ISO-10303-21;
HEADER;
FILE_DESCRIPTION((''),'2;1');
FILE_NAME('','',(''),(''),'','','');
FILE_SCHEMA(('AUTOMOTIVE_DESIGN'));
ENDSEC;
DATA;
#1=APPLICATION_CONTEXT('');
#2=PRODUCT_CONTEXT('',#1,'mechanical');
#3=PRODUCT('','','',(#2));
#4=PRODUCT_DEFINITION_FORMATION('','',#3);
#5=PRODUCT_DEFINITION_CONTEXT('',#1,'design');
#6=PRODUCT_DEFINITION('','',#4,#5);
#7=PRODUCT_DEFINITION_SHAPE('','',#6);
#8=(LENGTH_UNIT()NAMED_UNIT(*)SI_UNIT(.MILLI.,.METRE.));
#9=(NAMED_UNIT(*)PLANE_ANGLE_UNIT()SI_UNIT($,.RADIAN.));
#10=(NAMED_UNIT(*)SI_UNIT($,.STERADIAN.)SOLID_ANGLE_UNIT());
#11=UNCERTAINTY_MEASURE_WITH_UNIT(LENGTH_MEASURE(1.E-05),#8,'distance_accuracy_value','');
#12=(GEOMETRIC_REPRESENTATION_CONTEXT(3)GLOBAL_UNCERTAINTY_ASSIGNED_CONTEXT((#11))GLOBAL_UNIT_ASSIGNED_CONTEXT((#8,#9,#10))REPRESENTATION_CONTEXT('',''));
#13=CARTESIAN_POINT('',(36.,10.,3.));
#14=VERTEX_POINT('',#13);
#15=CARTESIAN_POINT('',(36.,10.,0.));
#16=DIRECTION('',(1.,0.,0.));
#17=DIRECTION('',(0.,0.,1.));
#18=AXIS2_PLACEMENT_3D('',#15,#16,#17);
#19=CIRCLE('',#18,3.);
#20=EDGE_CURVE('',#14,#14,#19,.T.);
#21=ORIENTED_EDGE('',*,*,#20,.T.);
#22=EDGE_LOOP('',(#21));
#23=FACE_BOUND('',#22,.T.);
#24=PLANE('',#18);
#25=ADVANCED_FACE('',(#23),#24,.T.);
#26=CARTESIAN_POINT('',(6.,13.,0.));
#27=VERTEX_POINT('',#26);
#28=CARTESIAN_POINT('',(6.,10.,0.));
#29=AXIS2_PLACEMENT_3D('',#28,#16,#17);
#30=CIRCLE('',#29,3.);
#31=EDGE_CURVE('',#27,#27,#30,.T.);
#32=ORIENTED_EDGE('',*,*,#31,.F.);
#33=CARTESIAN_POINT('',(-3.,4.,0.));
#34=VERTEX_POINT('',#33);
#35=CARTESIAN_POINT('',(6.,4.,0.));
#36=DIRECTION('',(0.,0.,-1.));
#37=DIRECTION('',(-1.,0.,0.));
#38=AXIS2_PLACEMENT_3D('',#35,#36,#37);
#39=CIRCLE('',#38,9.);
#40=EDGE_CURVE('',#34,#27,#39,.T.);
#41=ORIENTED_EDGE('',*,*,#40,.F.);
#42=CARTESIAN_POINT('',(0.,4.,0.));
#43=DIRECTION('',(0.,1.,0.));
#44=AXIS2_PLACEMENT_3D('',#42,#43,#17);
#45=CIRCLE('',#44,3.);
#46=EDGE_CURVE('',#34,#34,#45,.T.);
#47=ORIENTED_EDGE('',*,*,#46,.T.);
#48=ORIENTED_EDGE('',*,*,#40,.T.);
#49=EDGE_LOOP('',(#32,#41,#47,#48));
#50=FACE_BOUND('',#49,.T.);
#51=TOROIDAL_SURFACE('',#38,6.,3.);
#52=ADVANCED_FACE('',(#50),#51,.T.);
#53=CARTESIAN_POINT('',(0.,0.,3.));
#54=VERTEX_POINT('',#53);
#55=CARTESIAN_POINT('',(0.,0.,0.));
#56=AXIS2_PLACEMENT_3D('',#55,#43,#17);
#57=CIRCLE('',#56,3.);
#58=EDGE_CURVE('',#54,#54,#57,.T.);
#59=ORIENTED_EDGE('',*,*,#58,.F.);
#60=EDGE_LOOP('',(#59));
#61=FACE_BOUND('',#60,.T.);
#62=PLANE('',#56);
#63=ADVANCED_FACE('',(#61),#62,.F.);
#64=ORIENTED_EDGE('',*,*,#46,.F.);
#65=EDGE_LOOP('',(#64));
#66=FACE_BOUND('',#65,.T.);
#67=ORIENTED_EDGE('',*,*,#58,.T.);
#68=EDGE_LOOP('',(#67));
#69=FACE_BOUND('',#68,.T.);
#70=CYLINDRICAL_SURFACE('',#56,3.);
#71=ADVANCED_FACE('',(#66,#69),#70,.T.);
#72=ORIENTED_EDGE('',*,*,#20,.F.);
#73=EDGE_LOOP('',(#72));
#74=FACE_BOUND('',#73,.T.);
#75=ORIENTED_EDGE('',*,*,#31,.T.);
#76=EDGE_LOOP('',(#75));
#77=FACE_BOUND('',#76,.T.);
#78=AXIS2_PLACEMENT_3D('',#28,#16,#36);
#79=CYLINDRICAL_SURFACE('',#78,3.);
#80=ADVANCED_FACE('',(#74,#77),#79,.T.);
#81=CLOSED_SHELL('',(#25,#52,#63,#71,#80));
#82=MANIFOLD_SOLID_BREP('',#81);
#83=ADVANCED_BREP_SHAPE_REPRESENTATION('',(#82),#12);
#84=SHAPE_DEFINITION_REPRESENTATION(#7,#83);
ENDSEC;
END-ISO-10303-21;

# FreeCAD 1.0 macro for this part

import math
import FreeCAD as App
import Part
import Sketcher

doc = App.newDocument("Part")
body = doc.addObject("PartDesign::Body", "Body")

# Sketch on XZ plane
sketch1 = body.newObject("Sketcher::SketchObject", "Sketch")
sketch1.AttachmentSupport = (doc.getObject("XZ_Plane"), [""])
sketch1.MapMode = "FlatFace"
sketch1.addGeometry(Part.Circle(App.Vector(0, 0, 0), App.Vector(0, 0, 1), 3), False)
sketch1.addConstraint([
    Sketcher.Constraint("Coincident", 0, 3, -1, 1),
    Sketcher.Constraint("Diameter", 0, 6.0),
])

# Sketch on XY plane
sketch2 = body.newObject("Sketcher::SketchObject", "Sketch001")
sketch2.AttachmentSupport = (doc.getObject("XY_Plane"), [""])
sketch2.MapMode = "FlatFace"
sketch2.addGeometry([
    Part.LineSegment(App.Vector(0, 0, 0), App.Vector(0, 4, 0)),
    Part.ArcOfCircle(Part.Circle(App.Vector(6, 4, 0), App.Vector(0, 0, 1), 6), math.radians(90), math.radians(180)),
    Part.LineSegment(App.Vector(6, 10, 0), App.Vector(36, 10, 0)),
], False)
sketch2.addConstraint([
    Sketcher.Constraint("Tangent", 0, 2, 1, 2),
    Sketcher.Constraint("Tangent", 1, 1, 2, 1),
    Sketcher.Constraint("Vertical", 0),
    Sketcher.Constraint("Horizontal", 2),
    Sketcher.Constraint("Coincident", 0, 1, -1, 1),
    Sketcher.Constraint("Radius", 1, 6.0),
    Sketcher.Constraint("DistanceX", 2, 1, 2, 2, 30.0),
    Sketcher.Constraint("DistanceY", 0, 1, 0, 2, 4.0),
])
doc.recompute()

additivepipe = body.newObject("PartDesign::AdditivePipe", "AdditivePipe")
additivepipe.Profile = sketch1
additivepipe.Spine = (sketch2, ["Edge1", "Edge2", "Edge3"])

doc.recompute()
